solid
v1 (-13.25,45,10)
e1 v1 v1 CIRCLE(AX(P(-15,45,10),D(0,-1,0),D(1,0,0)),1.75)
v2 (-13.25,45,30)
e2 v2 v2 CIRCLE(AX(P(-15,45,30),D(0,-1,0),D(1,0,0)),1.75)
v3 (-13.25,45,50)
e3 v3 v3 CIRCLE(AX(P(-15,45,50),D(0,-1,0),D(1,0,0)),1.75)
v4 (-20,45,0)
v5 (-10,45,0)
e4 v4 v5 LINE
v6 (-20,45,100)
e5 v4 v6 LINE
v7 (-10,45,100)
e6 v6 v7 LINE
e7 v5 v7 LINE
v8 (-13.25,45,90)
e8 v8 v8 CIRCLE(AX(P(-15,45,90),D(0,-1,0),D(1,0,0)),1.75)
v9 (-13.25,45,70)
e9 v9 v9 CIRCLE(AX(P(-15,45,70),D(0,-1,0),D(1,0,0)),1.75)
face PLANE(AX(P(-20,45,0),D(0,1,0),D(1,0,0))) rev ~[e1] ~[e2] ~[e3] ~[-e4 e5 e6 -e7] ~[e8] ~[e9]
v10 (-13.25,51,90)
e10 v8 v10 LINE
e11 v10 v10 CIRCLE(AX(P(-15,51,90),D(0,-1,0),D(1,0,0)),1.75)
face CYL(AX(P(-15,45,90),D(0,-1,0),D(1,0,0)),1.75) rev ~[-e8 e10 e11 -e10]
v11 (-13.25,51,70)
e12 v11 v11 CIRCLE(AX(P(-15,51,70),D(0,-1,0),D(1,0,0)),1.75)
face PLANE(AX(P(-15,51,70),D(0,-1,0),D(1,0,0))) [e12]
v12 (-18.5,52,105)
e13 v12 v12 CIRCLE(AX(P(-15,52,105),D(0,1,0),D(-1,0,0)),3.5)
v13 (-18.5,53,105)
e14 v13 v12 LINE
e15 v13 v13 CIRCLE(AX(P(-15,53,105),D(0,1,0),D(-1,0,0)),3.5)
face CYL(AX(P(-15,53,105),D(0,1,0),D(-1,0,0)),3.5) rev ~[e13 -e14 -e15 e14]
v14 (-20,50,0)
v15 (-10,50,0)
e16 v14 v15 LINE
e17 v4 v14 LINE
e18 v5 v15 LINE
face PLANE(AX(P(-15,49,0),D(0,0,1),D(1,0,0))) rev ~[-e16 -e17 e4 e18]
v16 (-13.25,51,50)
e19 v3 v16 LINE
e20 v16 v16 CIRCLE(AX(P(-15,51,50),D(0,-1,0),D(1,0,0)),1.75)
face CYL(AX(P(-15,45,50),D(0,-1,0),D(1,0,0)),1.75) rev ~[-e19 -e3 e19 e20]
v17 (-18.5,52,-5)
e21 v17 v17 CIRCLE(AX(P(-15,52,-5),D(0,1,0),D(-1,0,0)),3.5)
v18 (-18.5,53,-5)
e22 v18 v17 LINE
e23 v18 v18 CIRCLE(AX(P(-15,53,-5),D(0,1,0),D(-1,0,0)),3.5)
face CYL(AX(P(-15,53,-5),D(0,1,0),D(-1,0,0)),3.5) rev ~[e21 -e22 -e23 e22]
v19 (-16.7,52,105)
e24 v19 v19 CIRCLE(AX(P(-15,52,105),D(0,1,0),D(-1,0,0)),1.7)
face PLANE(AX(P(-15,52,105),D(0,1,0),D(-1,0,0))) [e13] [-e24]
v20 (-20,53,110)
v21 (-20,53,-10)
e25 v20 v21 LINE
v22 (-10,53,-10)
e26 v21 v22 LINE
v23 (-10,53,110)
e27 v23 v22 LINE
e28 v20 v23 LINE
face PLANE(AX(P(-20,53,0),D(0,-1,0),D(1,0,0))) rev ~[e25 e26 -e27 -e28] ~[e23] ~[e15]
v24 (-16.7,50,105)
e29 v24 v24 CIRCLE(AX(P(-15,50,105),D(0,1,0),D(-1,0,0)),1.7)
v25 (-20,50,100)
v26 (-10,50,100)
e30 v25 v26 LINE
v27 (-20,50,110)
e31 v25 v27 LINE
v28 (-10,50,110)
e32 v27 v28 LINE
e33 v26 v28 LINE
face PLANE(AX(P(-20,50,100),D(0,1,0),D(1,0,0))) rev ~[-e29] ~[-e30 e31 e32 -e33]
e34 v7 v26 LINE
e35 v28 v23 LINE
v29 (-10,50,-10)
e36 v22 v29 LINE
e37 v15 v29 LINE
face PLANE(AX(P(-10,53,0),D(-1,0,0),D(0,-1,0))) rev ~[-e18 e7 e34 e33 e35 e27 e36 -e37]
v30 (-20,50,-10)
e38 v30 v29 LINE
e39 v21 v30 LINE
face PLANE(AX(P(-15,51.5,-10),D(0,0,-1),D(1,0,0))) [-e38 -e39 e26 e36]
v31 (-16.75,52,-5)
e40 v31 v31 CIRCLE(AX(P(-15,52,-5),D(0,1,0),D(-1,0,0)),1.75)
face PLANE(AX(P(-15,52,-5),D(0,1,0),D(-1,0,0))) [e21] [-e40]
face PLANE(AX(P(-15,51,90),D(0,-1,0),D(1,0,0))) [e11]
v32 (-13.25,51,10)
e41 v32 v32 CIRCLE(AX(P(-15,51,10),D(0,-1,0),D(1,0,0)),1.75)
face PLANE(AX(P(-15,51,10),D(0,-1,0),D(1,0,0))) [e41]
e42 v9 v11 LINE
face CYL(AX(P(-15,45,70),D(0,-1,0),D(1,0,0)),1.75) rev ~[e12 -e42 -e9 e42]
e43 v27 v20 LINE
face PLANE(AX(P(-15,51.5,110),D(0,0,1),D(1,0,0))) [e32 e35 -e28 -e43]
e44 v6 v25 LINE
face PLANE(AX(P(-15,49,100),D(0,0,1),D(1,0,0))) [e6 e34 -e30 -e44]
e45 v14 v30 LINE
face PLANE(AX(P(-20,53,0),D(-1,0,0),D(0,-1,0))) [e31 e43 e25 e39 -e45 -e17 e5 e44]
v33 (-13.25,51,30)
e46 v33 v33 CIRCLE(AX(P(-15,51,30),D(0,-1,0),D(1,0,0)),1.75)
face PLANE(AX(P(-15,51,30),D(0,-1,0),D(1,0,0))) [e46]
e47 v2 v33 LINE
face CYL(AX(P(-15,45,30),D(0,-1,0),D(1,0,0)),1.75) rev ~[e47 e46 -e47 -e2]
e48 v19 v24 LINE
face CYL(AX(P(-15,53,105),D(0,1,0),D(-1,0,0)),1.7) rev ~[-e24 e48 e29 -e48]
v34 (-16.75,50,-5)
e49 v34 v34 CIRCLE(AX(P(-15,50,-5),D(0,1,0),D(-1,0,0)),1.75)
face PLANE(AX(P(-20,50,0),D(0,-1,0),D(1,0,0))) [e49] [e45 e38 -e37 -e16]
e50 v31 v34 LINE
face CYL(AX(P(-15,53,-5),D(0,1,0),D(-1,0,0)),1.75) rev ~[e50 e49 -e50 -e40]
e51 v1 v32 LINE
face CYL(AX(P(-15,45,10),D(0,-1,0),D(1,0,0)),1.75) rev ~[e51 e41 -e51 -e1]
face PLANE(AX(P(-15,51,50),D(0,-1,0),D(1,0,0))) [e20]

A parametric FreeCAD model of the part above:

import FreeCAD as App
import Part
import Sketcher

V = App.Vector
Q = App.Units.Quantity

doc = App.newDocument("Part")
params = doc.addObject("Spreadsheet::Sheet", "Params")
for row, (alias, value) in enumerate([
    ("sketch1_width", "10 mm"),
    ("sketch1_height", "8 mm"),
    ("pad1_length", "100 mm"),
    ("sketch2_width", "10 mm"),
    ("sketch2_height", "3 mm"),
    ("pad2_length", "10 mm"),
    ("sketch3_diameter", "3.4 mm"),
    ("pocket1_length", "5 mm"),
    ("sketch4_diameter", "7 mm"),
    ("pocket2_length", "1 mm"),
    ("sketch5_width", "10 mm"),
    ("sketch5_height", "3 mm"),
    ("pad3_length", "10 mm"),
    ("sketch6_diameter", "3.5 mm"),
    ("pocket3_length", "5 mm"),
    ("sketch7_diameter", "7 mm"),
    ("pocket4_length", "1 mm"),
    ("sketch8_diameter", "3.5 mm"),
    ("pocket5_length", "6 mm"),
], start=1):
    params.set(f"A{row}", alias)
    params.set(f"B{row}", "=" + value)
    params.setAlias(f"B{row}", alias)

body = doc.addObject("PartDesign::Body", "Body")

# Sketch on XY plane
sketch1 = doc.addObject("Sketcher::SketchObject", "Sketch")
body.addObject(sketch1)
sketch1.AttachmentSupport = (doc.XY_Plane, [""])
sketch1.MapMode = "FlatFace"
sketch1.addGeometry([
    Part.LineSegment(V(-20, 53, 0), V(-20, 45, 0)),
    Part.LineSegment(V(-20, 45, 0), V(-10, 45, 0)),
    Part.LineSegment(V(-10, 45, 0), V(-10, 53, 0)),
    Part.LineSegment(V(-10, 53, 0), V(-20, 53, 0)),
], False)
sketch1.addConstraint([
    Sketcher.Constraint("Coincident", 0, 2, 1, 1),
    Sketcher.Constraint("Coincident", 1, 2, 2, 1),
    Sketcher.Constraint("Coincident", 2, 2, 3, 1),
    Sketcher.Constraint("Coincident", 3, 2, 0, 1),
    Sketcher.Constraint("Vertical", 0),
    Sketcher.Constraint("Horizontal", 1),
    Sketcher.Constraint("Vertical", 2),
    Sketcher.Constraint("Horizontal", 3),
    Sketcher.Constraint("DistanceX", 1, 1, 1, 2, Q("10 mm")),
    Sketcher.Constraint("DistanceY", 0, 2, 0, 1, Q("8 mm")),
    Sketcher.Constraint("DistanceX", 0, 2, -1, 1, Q("20 mm")),
    Sketcher.Constraint("DistanceY", -1, 1, 0, 2, Q("45 mm")),
])
sketch1.setExpression("Constraints[8]", "Params.sketch1_width")
sketch1.setExpression("Constraints[9]", "Params.sketch1_height")
pad1 = doc.addObject("PartDesign::Pad", "Pad")
body.addObject(pad1)
pad1.Profile = sketch1
pad1.setExpression("Length", "Params.pad1_length")

# Sketch on XY plane
sketch2 = doc.addObject("Sketcher::SketchObject", "Sketch001")
body.addObject(sketch2)
sketch2.AttachmentSupport = (doc.XY_Plane, [""])
sketch2.MapMode = "FlatFace"
sketch2.AttachmentOffset = App.Placement(V(0, 0, 100), App.Rotation())
sketch2.addGeometry([
    Part.LineSegment(V(-20, 53, 0), V(-20, 50, 0)),
    Part.LineSegment(V(-20, 50, 0), V(-10, 50, 0)),
    Part.LineSegment(V(-10, 50, 0), V(-10, 53, 0)),
    Part.LineSegment(V(-10, 53, 0), V(-20, 53, 0)),
], False)
sketch2.addConstraint([
    Sketcher.Constraint("Coincident", 0, 2, 1, 1),
    Sketcher.Constraint("Coincident", 1, 2, 2, 1),
    Sketcher.Constraint("Coincident", 2, 2, 3, 1),
    Sketcher.Constraint("Coincident", 3, 2, 0, 1),
    Sketcher.Constraint("Vertical", 0),
    Sketcher.Constraint("Horizontal", 1),
    Sketcher.Constraint("Vertical", 2),
    Sketcher.Constraint("Horizontal", 3),
    Sketcher.Constraint("DistanceX", 1, 1, 1, 2, Q("10 mm")),
    Sketcher.Constraint("DistanceY", 0, 2, 0, 1, Q("3 mm")),
    Sketcher.Constraint("DistanceX", 0, 2, -1, 1, Q("20 mm")),
    Sketcher.Constraint("DistanceY", -1, 1, 0, 2, Q("50 mm")),
])
sketch2.setExpression("Constraints[8]", "Params.sketch2_width")
sketch2.setExpression("Constraints[9]", "Params.sketch2_height")
pad2 = doc.addObject("PartDesign::Pad", "Pad001")
body.addObject(pad2)
pad2.Profile = sketch2
pad2.setExpression("Length", "Params.pad2_length")

# Sketch on XZ plane
sketch3 = doc.addObject("Sketcher::SketchObject", "Sketch002")
body.addObject(sketch3)
sketch3.AttachmentSupport = (doc.XZ_Plane, [""])
sketch3.MapMode = "FlatFace"
sketch3.AttachmentOffset = App.Placement(V(0, 0, -53), App.Rotation())
sketch3.addGeometry(Part.Circle(V(-15, 105, 0), V(0, 0, 1), 1.7), False)
sketch3.addConstraint([
    Sketcher.Constraint("Diameter", 0, Q("3.4 mm")),
    Sketcher.Constraint("DistanceX", 0, 3, -1, 1, Q("15 mm")),
    Sketcher.Constraint("DistanceY", -1, 1, 0, 3, Q("105 mm")),
])
sketch3.setExpression("Constraints[0]", "Params.sketch3_diameter")
pocket1 = doc.addObject("PartDesign::Pocket", "Pocket")
body.addObject(pocket1)
pocket1.Profile = sketch3
pocket1.setExpression("Length", "Params.pocket1_length")
pocket1.Reversed = True

# Sketch on XZ plane
sketch4 = doc.addObject("Sketcher::SketchObject", "Sketch003")
body.addObject(sketch4)
sketch4.AttachmentSupport = (doc.XZ_Plane, [""])
sketch4.MapMode = "FlatFace"
sketch4.AttachmentOffset = App.Placement(V(0, 0, -53), App.Rotation())
sketch4.addGeometry(Part.Circle(V(-15, 105, 0), V(0, 0, 1), 3.5), False)
sketch4.addConstraint([
    Sketcher.Constraint("Diameter", 0, Q("7 mm")),
    Sketcher.Constraint("DistanceX", 0, 3, -1, 1, Q("15 mm")),
    Sketcher.Constraint("DistanceY", -1, 1, 0, 3, Q("105 mm")),
])
sketch4.setExpression("Constraints[0]", "Params.sketch4_diameter")
pocket2 = doc.addObject("PartDesign::Pocket", "Pocket001")
body.addObject(pocket2)
pocket2.Profile = sketch4
pocket2.setExpression("Length", "Params.pocket2_length")
pocket2.Reversed = True

# Sketch on XY plane
sketch5 = doc.addObject("Sketcher::SketchObject", "Sketch004")
body.addObject(sketch5)
sketch5.AttachmentSupport = (doc.XY_Plane, [""])
sketch5.MapMode = "FlatFace"
sketch5.addGeometry([
    Part.LineSegment(V(-20, 50, 0), V(-20, 53, 0)),
    Part.LineSegment(V(-20, 53, 0), V(-10, 53, 0)),
    Part.LineSegment(V(-10, 53, 0), V(-10, 50, 0)),
    Part.LineSegment(V(-10, 50, 0), V(-20, 50, 0)),
], False)
sketch5.addConstraint([
    Sketcher.Constraint("Coincident", 0, 2, 1, 1),
    Sketcher.Constraint("Coincident", 1, 2, 2, 1),
    Sketcher.Constraint("Coincident", 2, 2, 3, 1),
    Sketcher.Constraint("Coincident", 3, 2, 0, 1),
    Sketcher.Constraint("Vertical", 0),
    Sketcher.Constraint("Horizontal", 1),
    Sketcher.Constraint("Vertical", 2),
    Sketcher.Constraint("Horizontal", 3),
    Sketcher.Constraint("DistanceX", 1, 1, 1, 2, Q("10 mm")),
    Sketcher.Constraint("DistanceY", 0, 1, 0, 2, Q("3 mm")),
    Sketcher.Constraint("DistanceX", 0, 2, -1, 1, Q("20 mm")),
    Sketcher.Constraint("DistanceY", -1, 1, 0, 2, Q("53 mm")),
])
sketch5.setExpression("Constraints[8]", "Params.sketch5_width")
sketch5.setExpression("Constraints[9]", "Params.sketch5_height")
pad3 = doc.addObject("PartDesign::Pad", "Pad002")
body.addObject(pad3)
pad3.Profile = sketch5
pad3.setExpression("Length", "Params.pad3_length")
pad3.Reversed = True

# Sketch on XZ plane
sketch6 = doc.addObject("Sketcher::SketchObject", "Sketch005")
body.addObject(sketch6)
sketch6.AttachmentSupport = (doc.XZ_Plane, [""])
sketch6.MapMode = "FlatFace"
sketch6.AttachmentOffset = App.Placement(V(0, 0, -53), App.Rotation())
sketch6.addGeometry(Part.Circle(V(-15, -5, 0), V(0, 0, 1), 1.8), False)
sketch6.addConstraint([
    Sketcher.Constraint("Diameter", 0, Q("3.5 mm")),
    Sketcher.Constraint("DistanceX", 0, 3, -1, 1, Q("15 mm")),
    Sketcher.Constraint("DistanceY", 0, 3, -1, 1, Q("5 mm")),
])
sketch6.setExpression("Constraints[0]", "Params.sketch6_diameter")
pocket3 = doc.addObject("PartDesign::Pocket", "Pocket002")
body.addObject(pocket3)
pocket3.Profile = sketch6
pocket3.setExpression("Length", "Params.pocket3_length")
pocket3.Reversed = True

# Sketch on XZ plane
sketch7 = doc.addObject("Sketcher::SketchObject", "Sketch006")
body.addObject(sketch7)
sketch7.AttachmentSupport = (doc.XZ_Plane, [""])
sketch7.MapMode = "FlatFace"
sketch7.AttachmentOffset = App.Placement(V(0, 0, -53), App.Rotation())
sketch7.addGeometry(Part.Circle(V(-15, -5, 0), V(0, 0, 1), 3.5), False)
sketch7.addConstraint([
    Sketcher.Constraint("Diameter", 0, Q("7 mm")),
    Sketcher.Constraint("DistanceX", 0, 3, -1, 1, Q("15 mm")),
    Sketcher.Constraint("DistanceY", 0, 3, -1, 1, Q("5 mm")),
])
sketch7.setExpression("Constraints[0]", "Params.sketch7_diameter")
pocket4 = doc.addObject("PartDesign::Pocket", "Pocket003")
body.addObject(pocket4)
pocket4.Profile = sketch7
pocket4.setExpression("Length", "Params.pocket4_length")
pocket4.Reversed = True

# Sketch on XZ plane
sketch8 = doc.addObject("Sketcher::SketchObject", "Sketch007")
body.addObject(sketch8)
sketch8.AttachmentSupport = (doc.XZ_Plane, [""])
sketch8.MapMode = "FlatFace"
sketch8.AttachmentOffset = App.Placement(V(0, 0, -45), App.Rotation())
sketch8.addGeometry([
    Part.Circle(V(-15, 90, 0), V(0, 0, 1), 1.8),  # 0
    Part.Circle(V(-15, 70, 0), V(0, 0, 1), 1.8),  # 1
    Part.Circle(V(-15, 50, 0), V(0, 0, 1), 1.8),  # 2
    Part.Circle(V(-15, 30, 0), V(0, 0, 1), 1.8),  # 3
    Part.Circle(V(-15, 10, 0), V(0, 0, 1), 1.8),  # 4
], False)
sketch8.addConstraint([
    Sketcher.Constraint("Equal", 0, 1),
    Sketcher.Constraint("Equal", 1, 2),
    Sketcher.Constraint("Equal", 2, 3),
    Sketcher.Constraint("Equal", 3, 4),
    Sketcher.Constraint("Vertical", 0, 3, 1, 3),
    Sketcher.Constraint("Vertical", 1, 3, 2, 3),
    Sketcher.Constraint("Vertical", 2, 3, 3, 3),
    Sketcher.Constraint("Vertical", 3, 3, 4, 3),
    Sketcher.Constraint("Diameter", 0, Q("3.5 mm")),
    Sketcher.Constraint("DistanceX", 0, 3, -1, 1, Q("15 mm")),
    Sketcher.Constraint("DistanceY", -1, 1, 0, 3, Q("90 mm")),
    Sketcher.Constraint("DistanceY", -1, 1, 1, 3, Q("70 mm")),
    Sketcher.Constraint("DistanceY", -1, 1, 2, 3, Q("50 mm")),
    Sketcher.Constraint("DistanceY", -1, 1, 3, 3, Q("30 mm")),
    Sketcher.Constraint("DistanceY", -1, 1, 4, 3, Q("10 mm")),
])
sketch8.setExpression("Constraints[8]", "Params.sketch8_diameter")
pocket5 = doc.addObject("PartDesign::Pocket", "Pocket004")
body.addObject(pocket5)
pocket5.Profile = sketch8
pocket5.setExpression("Length", "Params.pocket5_length")

doc.recompute()
